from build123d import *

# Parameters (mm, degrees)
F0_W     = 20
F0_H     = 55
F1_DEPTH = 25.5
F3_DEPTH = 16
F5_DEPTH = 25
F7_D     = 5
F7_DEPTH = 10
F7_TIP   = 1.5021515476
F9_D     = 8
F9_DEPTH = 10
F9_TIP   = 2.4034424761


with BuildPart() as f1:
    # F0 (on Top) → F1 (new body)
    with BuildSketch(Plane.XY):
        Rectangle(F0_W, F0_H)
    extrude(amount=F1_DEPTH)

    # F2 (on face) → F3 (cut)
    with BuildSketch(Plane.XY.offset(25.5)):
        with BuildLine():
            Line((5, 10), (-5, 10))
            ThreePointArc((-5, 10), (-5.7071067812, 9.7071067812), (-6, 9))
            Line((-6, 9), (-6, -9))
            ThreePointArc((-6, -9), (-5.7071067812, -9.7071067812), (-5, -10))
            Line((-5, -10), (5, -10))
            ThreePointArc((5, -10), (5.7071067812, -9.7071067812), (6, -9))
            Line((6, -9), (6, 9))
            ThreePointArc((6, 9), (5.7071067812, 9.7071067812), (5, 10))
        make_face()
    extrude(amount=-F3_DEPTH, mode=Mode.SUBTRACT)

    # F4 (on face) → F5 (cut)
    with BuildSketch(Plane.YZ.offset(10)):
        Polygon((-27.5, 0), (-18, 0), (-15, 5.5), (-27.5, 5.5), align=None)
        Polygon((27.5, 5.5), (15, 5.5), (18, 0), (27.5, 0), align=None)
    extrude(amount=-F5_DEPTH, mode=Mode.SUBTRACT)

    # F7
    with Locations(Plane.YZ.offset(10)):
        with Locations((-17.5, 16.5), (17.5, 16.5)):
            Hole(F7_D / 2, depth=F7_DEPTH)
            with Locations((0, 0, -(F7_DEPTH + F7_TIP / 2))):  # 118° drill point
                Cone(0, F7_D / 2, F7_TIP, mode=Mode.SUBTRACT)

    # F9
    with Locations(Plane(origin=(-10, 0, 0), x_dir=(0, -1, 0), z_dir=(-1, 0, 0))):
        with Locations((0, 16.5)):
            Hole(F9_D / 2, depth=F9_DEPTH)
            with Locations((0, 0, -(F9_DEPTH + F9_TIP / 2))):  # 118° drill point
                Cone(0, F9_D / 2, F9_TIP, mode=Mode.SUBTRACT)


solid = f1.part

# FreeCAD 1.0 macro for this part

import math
import FreeCAD as App
import Part
import Sketcher

V = App.Vector
Q = App.Units.Quantity


def add_polygon(sketch, points):
    """Adds a closed chain of lines whose ends are joined by coincident constraints."""
    first, n = sketch.GeometryCount, len(points)
    for a, b in zip(points, points[1:] + points[:1]):
        sketch.addGeometry(Part.LineSegment(App.Vector(*a, 0), App.Vector(*b, 0)), False)
    for i in range(n):
        sketch.addConstraint(Sketcher.Constraint("Coincident", first + i, 2, first + (i + 1) % n, 1))

doc = App.newDocument("Part")
body = doc.addObject("PartDesign::Body", "Body")

# Sketch on XY plane
sketch1 = body.newObject("Sketcher::SketchObject", "Sketch")
sketch1.AttachmentSupport = (doc.getObject("XY_Plane"), [""])
sketch1.MapMode = "FlatFace"
add_polygon(sketch1, [(-10, 28), (-10, -28), (10, -28), (10, 28)])  # lines 0-3
sketch1.addConstraint([
    Sketcher.Constraint("Vertical", 0),
    Sketcher.Constraint("Horizontal", 1),
    Sketcher.Constraint("Vertical", 2),
    Sketcher.Constraint("Horizontal", 3),
    Sketcher.Constraint("Symmetric", 0, 2, 2, 2, -1, 1),
    Sketcher.Constraint("DistanceX", 1, 1, 1, 2, Q("20 mm")),
    Sketcher.Constraint("DistanceY", 0, 2, 0, 1, Q("55 mm")),
])
pad1 = body.newObject("PartDesign::Pad", "Pad")
pad1.Profile = sketch1
pad1.Length = 25.5

# Sketch on XY plane
sketch2 = body.newObject("Sketcher::SketchObject", "Sketch001")
sketch2.AttachmentSupport = (doc.getObject("XY_Plane"), [""])
sketch2.MapMode = "FlatFace"
sketch2.AttachmentOffset = App.Placement(V(0, 0, 25.5), App.Rotation())
sketch2.addGeometry([
    Part.LineSegment(V(5, 10, 0), V(-5, 10, 0)),  # 0
    Part.ArcOfCircle(Part.Circle(V(-5, 9, 0), V(0, 0, 1), 1), math.radians(90), math.radians(180)),  # 1
    Part.LineSegment(V(-6, 9, 0), V(-6, -9, 0)),  # 2
    Part.ArcOfCircle(Part.Circle(V(-5, -9, 0), V(0, 0, 1), 1), math.radians(180), math.radians(270)),  # 3
    Part.LineSegment(V(-5, -10, 0), V(5, -10, 0)),  # 4
    Part.ArcOfCircle(Part.Circle(V(5, -9, 0), V(0, 0, 1), 1), math.radians(-90), math.radians(0)),  # 5
    Part.LineSegment(V(6, -9, 0), V(6, 9, 0)),  # 6
    Part.ArcOfCircle(Part.Circle(V(5, 9, 0), V(0, 0, 1), 1), math.radians(0), math.radians(90)),  # 7
], False)
sketch2.addConstraint([
    Sketcher.Constraint("Tangent", 0, 2, 1, 1),
    Sketcher.Constraint("Tangent", 1, 2, 2, 1),
    Sketcher.Constraint("Tangent", 2, 2, 3, 1),
    Sketcher.Constraint("Tangent", 3, 2, 4, 1),
    Sketcher.Constraint("Tangent", 4, 2, 5, 1),
    Sketcher.Constraint("Tangent", 5, 2, 6, 1),
    Sketcher.Constraint("Tangent", 6, 2, 7, 1),
    Sketcher.Constraint("Tangent", 7, 2, 0, 1),
    Sketcher.Constraint("Horizontal", 0),
    Sketcher.Constraint("Vertical", 2),
    Sketcher.Constraint("Horizontal", 4),
    Sketcher.Constraint("Vertical", 6),
    Sketcher.Constraint("Equal", 1, 3),
    Sketcher.Constraint("Equal", 3, 5),
    Sketcher.Constraint("Equal", 5, 7),
    Sketcher.Constraint("Symmetric", 1, 3, 5, 3, -1, 1),
    Sketcher.Constraint("Radius", 1, Q("1 mm")),
    Sketcher.Constraint("DistanceX", 0, 2, 0, 1, Q("10 mm")),
    Sketcher.Constraint("DistanceY", 2, 2, 2, 1, Q("18 mm")),
])
pocket1 = body.newObject("PartDesign::Pocket", "Pocket")
pocket1.Profile = sketch2
pocket1.Length = 16

# Sketch on YZ plane
sketch3 = body.newObject("Sketcher::SketchObject", "Sketch002")
sketch3.AttachmentSupport = (doc.getObject("YZ_Plane"), [""])
sketch3.MapMode = "FlatFace"
sketch3.AttachmentOffset = App.Placement(V(0, 0, 10), App.Rotation())
add_polygon(sketch3, [(-28, 0), (-18, 0), (-15, 6), (-28, 6)])  # lines 0-3
add_polygon(sketch3, [(28, 6), (15, 6), (18, 0), (28, 0)])  # lines 4-7
sketch3.addConstraint([
    Sketcher.Constraint("Horizontal", 0),
    Sketcher.Constraint("Horizontal", 2),
    Sketcher.Constraint("Vertical", 3),
    Sketcher.Constraint("Horizontal", 4),
    Sketcher.Constraint("Horizontal", 6),
    Sketcher.Constraint("Vertical", 7),
    Sketcher.Constraint("Symmetric", 0, 2, 5, 2, -1, 1),
    Sketcher.Constraint("Symmetric", 1, 2, 4, 2, -2),
    Sketcher.Constraint("Symmetric", 3, 2, 6, 2, -2),
    Sketcher.Constraint("DistanceX", 0, 1, 0, 2, Q("9.5 mm")),
    Sketcher.Constraint("DistanceX", 2, 2, 2, 1, Q("12.5 mm")),
    Sketcher.Constraint("DistanceY", 3, 2, 3, 1, Q("5.5 mm")),
    Sketcher.Constraint("DistanceX", 0, 2, -1, 1, Q("18 mm")),
])
pocket2 = body.newObject("PartDesign::Pocket", "Pocket001")
pocket2.Profile = sketch3
pocket2.Length = 25

# Sketch on YZ plane
sketch4 = body.newObject("Sketcher::SketchObject", "Sketch003")
sketch4.AttachmentSupport = (doc.getObject("YZ_Plane"), [""])
sketch4.MapMode = "FlatFace"
sketch4.AttachmentOffset = App.Placement(V(0, 0, 10), App.Rotation())
sketch4.addGeometry([
    Part.Circle(V(-17.5, 16.5, 0), V(0, 0, 1), 2.5),
    Part.Circle(V(17.5, 16.5, 0), V(0, 0, 1), 2.5),
], False)
sketch4.addConstraint([
    Sketcher.Constraint("Equal", 0, 1),
    Sketcher.Constraint("Symmetric", 0, 3, 1, 3, -2),
    Sketcher.Constraint("Diameter", 0, Q("5 mm")),
    Sketcher.Constraint("DistanceX", 0, 3, 1, 3, Q("35 mm")),
    Sketcher.Constraint("DistanceY", -1, 1, 0, 3, Q("16.5 mm")),
])
doc.recompute()
hole = body.newObject("PartDesign::Hole", "Hole")
hole.Profile = sketch4
hole.ThreadType = "None"
hole.Diameter = 5
hole.DepthType = "Dimension"
hole.Depth = 10
hole.DrillPoint = "Angled"
hole.DrillPointAngle = 118

# Sketch on YZ plane
sketch5 = body.newObject("Sketcher::SketchObject", "Sketch004")
sketch5.AttachmentSupport = (doc.getObject("YZ_Plane"), [""])
sketch5.MapMode = "FlatFace"
sketch5.AttachmentOffset = App.Placement(V(0, 0, -10), App.Rotation())
sketch5.addGeometry(Part.Circle(V(0, 16.5, 0), V(0, 0, 1), 4), False)
sketch5.addConstraint([
    Sketcher.Constraint("PointOnObject", 0, 3, -2),
    Sketcher.Constraint("Diameter", 0, Q("8 mm")),
    Sketcher.Constraint("DistanceY", -1, 1, 0, 3, Q("16.5 mm")),
])
doc.recompute()
hole2 = body.newObject("PartDesign::Hole", "Hole001")
hole2.Profile = sketch5
hole2.ThreadType = "None"
hole2.Diameter = 8
hole2.DepthType = "Dimension"
hole2.Depth = 10
hole2.DrillPoint = "Angled"
hole2.DrillPointAngle = 118
hole2.Reversed = True

doc.recompute()
